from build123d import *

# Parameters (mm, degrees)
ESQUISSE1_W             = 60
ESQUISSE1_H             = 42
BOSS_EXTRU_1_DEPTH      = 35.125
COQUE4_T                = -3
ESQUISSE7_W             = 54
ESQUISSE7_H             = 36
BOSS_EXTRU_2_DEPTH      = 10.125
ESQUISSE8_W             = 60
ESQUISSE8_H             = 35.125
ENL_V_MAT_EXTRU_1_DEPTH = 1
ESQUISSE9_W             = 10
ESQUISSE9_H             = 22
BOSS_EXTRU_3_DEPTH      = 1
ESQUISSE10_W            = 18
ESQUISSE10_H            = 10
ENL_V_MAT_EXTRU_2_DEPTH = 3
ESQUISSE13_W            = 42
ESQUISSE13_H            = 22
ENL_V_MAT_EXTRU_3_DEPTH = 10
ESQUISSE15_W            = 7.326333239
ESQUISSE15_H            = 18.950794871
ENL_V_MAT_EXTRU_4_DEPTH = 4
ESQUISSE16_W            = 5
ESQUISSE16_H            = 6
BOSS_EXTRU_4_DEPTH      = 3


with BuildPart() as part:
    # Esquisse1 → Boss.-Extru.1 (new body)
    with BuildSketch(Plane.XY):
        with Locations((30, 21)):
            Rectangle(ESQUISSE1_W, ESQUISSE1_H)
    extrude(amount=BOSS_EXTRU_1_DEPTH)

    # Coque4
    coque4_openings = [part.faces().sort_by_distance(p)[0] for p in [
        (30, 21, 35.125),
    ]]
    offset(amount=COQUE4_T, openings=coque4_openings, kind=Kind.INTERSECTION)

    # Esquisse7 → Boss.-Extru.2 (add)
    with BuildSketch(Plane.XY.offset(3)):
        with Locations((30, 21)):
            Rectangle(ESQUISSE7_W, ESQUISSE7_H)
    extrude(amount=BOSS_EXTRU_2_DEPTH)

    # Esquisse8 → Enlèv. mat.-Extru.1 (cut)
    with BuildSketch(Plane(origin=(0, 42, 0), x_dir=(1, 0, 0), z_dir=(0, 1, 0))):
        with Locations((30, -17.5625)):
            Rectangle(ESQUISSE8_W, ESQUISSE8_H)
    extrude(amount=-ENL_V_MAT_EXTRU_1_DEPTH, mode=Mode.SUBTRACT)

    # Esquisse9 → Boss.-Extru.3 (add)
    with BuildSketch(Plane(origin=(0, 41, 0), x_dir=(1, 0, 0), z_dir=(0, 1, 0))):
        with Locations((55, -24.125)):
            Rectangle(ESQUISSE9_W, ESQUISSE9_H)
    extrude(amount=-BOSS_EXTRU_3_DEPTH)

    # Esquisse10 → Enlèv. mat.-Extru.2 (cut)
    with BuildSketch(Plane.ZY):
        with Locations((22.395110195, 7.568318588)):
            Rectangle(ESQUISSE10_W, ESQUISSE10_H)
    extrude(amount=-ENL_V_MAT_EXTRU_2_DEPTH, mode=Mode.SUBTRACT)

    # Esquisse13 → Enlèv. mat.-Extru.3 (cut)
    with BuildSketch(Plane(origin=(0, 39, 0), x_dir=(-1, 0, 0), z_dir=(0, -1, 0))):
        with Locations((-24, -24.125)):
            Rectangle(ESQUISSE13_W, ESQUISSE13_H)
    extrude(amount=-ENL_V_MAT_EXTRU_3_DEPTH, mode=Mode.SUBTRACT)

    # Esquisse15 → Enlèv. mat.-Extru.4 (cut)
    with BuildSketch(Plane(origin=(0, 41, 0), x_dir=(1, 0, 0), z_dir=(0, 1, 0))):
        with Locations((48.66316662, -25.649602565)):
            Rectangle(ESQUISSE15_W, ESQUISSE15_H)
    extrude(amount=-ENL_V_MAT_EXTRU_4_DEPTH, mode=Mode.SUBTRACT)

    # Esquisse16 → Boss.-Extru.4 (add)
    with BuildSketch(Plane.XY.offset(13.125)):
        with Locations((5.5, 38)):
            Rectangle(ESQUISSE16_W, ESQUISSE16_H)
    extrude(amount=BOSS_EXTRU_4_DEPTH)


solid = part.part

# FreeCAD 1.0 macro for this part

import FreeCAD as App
import Part
import Sketcher

V = App.Vector
Q = App.Units.Quantity


def faces_at(feature, points):
    """Names of the faces that lie closest to the given points."""
    faces = feature.Shape.Faces
    near = lambda p: min(range(len(faces)), key=lambda i: faces[i].distToShape(Part.Vertex(*p))[0])
    return sorted({f"Face{near(p) + 1}" for p in points})


def add_polygon(sketch, points):
    """Adds a closed chain of lines whose ends are joined by coincident constraints."""
    first, n = sketch.GeometryCount, len(points)
    for a, b in zip(points, points[1:] + points[:1]):
        sketch.addGeometry(Part.LineSegment(App.Vector(*a, 0), App.Vector(*b, 0)), False)
    for i in range(n):
        sketch.addConstraint(Sketcher.Constraint("Coincident", first + i, 2, first + (i + 1) % n, 1))

doc = App.newDocument("Part")
params = doc.addObject("Spreadsheet::Sheet", "Params")
for row, (alias, value) in enumerate([
    ("sketch1_width", "60 mm"),
    ("sketch1_height", "42 mm"),
    ("pad1_length", "35.125 mm"),
    ("thickness_wall", "3 mm"),
    ("sketch2_width", "54 mm"),
    ("sketch2_height", "36 mm"),
    ("pad2_length", "10.125 mm"),
    ("sketch3_width", "60 mm"),
    ("pocket1_length", "1 mm"),
    ("sketch4_width", "10 mm"),
    ("sketch4_height", "22 mm"),
    ("pad3_length", "1 mm"),
    ("sketch5_width", "10 mm"),
    ("sketch5_height", "18 mm"),
    ("pocket2_length", "3 mm"),
    ("sketch6_width", "42 mm"),
    ("sketch6_height", "22 mm"),
    ("pocket3_length", "10 mm"),
    ("pocket4_length", "4 mm"),
    ("sketch8_width", "5 mm"),
    ("sketch8_height", "6 mm"),
    ("pad4_length", "3 mm"),
], start=1):
    params.set(f"A{row}", alias)
    params.set(f"B{row}", "=" + value)
    params.setAlias(f"B{row}", alias)

body = doc.addObject("PartDesign::Body", "Body")

sketch1 = body.newObject("Sketcher::SketchObject", "Sketch")
sketch1.AttachmentSupport = (doc.getObject("XY_Plane"), [""])
sketch1.MapMode = "FlatFace"
add_polygon(sketch1, [(0, 42), (0, 0), (60, 0), (60, 42)])
sketch1.addConstraint([
    Sketcher.Constraint("Vertical", 0),
    Sketcher.Constraint("Horizontal", 1),
    Sketcher.Constraint("Vertical", 2),
    Sketcher.Constraint("Horizontal", 3),
    Sketcher.Constraint("Coincident", 0, 2, -1, 1),
    Sketcher.Constraint("DistanceX", 1, 1, 1, 2, Q("60 mm")),
    Sketcher.Constraint("DistanceY", 0, 2, 0, 1, Q("42 mm")),
])
sketch1.setExpression("Constraints[9]", "Params.sketch1_width")
sketch1.setExpression("Constraints[10]", "Params.sketch1_height")
pad1 = body.newObject("PartDesign::Pad", "Pad")
pad1.Profile = sketch1
pad1.setExpression("Length", "Params.pad1_length")
doc.recompute()

thickness = body.newObject("PartDesign::Thickness", "Thickness")
thickness.Base = (pad1, faces_at(pad1, [(30, 21, 35.125)]))
thickness.setExpression("Value", "Params.thickness_wall")
thickness.Reversed = True
thickness.Join = "Intersection"

sketch2 = body.newObject("Sketcher::SketchObject", "Sketch001")
sketch2.AttachmentSupport = (doc.getObject("XY_Plane"), [""])
sketch2.MapMode = "FlatFace"
sketch2.AttachmentOffset = App.Placement(V(0, 0, 3), App.Rotation())
add_polygon(sketch2, [(3, 39), (3, 3), (57, 3), (57, 39)])
sketch2.addConstraint([
    Sketcher.Constraint("Vertical", 0),
    Sketcher.Constraint("Horizontal", 1),
    Sketcher.Constraint("Vertical", 2),
    Sketcher.Constraint("Horizontal", 3),
    Sketcher.Constraint("DistanceX", 1, 1, 1, 2, Q("54 mm")),
    Sketcher.Constraint("DistanceY", 0, 2, 0, 1, Q("36 mm")),
    Sketcher.Constraint("DistanceX", -1, 1, 0, 2, Q("3 mm")),
    Sketcher.Constraint("DistanceY", -1, 1, 0, 2, Q("3 mm")),
])
sketch2.setExpression("Constraints[8]", "Params.sketch2_width")
sketch2.setExpression("Constraints[9]", "Params.sketch2_height")
pad2 = body.newObject("PartDesign::Pad", "Pad001")
pad2.Profile = sketch2
pad2.setExpression("Length", "Params.pad2_length")

sketch3 = body.newObject("Sketcher::SketchObject", "Sketch002")
sketch3.AttachmentSupport = (doc.getObject("XZ_Plane"), [""])
sketch3.MapMode = "FlatFace"
sketch3.AttachmentOffset = App.Placement(V(0, 0, -42), App.Rotation())
add_polygon(sketch3, [(0, 0), (0, 35.125), (60, 35.125), (60, 0)])
sketch3.addConstraint([
    Sketcher.Constraint("Vertical", 0),
    Sketcher.Constraint("Horizontal", 1),
    Sketcher.Constraint("Vertical", 2),
    Sketcher.Constraint("Horizontal", 3),
    Sketcher.Constraint("Coincident", 3, 2, -1, 1),
    Sketcher.Constraint("DistanceX", 1, 1, 1, 2, Q("60 mm")),
    Sketcher.Constraint("DistanceY", 0, 1, 0, 2, Q("35.125 mm")),
])
sketch3.setExpression("Constraints[9]", "Params.sketch3_width")
pocket1 = body.newObject("PartDesign::Pocket", "Pocket")
pocket1.Profile = sketch3
pocket1.setExpression("Length", "Params.pocket1_length")
pocket1.Reversed = True

sketch4 = body.newObject("Sketcher::SketchObject", "Sketch003")
sketch4.AttachmentSupport = (doc.getObject("XZ_Plane"), [""])
sketch4.MapMode = "FlatFace"
sketch4.AttachmentOffset = App.Placement(V(0, 0, -41), App.Rotation())
add_polygon(sketch4, [(50, 13.125), (50, 35.125), (60, 35.125), (60, 13.125)])
sketch4.addConstraint([
    Sketcher.Constraint("Vertical", 0),
    Sketcher.Constraint("Horizontal", 1),
    Sketcher.Constraint("Vertical", 2),
    Sketcher.Constraint("Horizontal", 3),
    Sketcher.Constraint("DistanceX", 1, 1, 1, 2, Q("10 mm")),
    Sketcher.Constraint("DistanceY", 0, 1, 0, 2, Q("22 mm")),
    Sketcher.Constraint("DistanceX", -1, 1, 0, 2, Q("50 mm")),
    Sketcher.Constraint("DistanceY", -1, 1, 0, 2, Q("35.125 mm")),
])
sketch4.setExpression("Constraints[8]", "Params.sketch4_width")
sketch4.setExpression("Constraints[9]", "Params.sketch4_height")
pad3 = body.newObject("PartDesign::Pad", "Pad002")
pad3.Profile = sketch4
pad3.setExpression("Length", "Params.pad3_length")

sketch5 = body.newObject("Sketcher::SketchObject", "Sketch004")
sketch5.AttachmentSupport = (doc.getObject("YZ_Plane"), [""])
sketch5.MapMode = "FlatFace"
add_polygon(sketch5, [(12.568319, 13.39511), (2.568319, 13.39511), (2.568319, 31.39511), (12.568319, 31.39511)])
sketch5.addConstraint([
    Sketcher.Constraint("Horizontal", 0),
    Sketcher.Constraint("Vertical", 1),
    Sketcher.Constraint("Horizontal", 2),
    Sketcher.Constraint("Vertical", 3),
    Sketcher.Constraint("DistanceX", 0, 2, 0, 1, Q("10 mm")),
    Sketcher.Constraint("DistanceY", 1, 1, 1, 2, Q("18 mm")),
    Sketcher.Constraint("DistanceX", -1, 1, 0, 2, Q("2.568319 mm")),
    Sketcher.Constraint("DistanceY", -1, 1, 0, 2, Q("13.39511 mm")),
])
sketch5.setExpression("Constraints[8]", "Params.sketch5_width")
sketch5.setExpression("Constraints[9]", "Params.sketch5_height")
pocket2 = body.newObject("PartDesign::Pocket", "Pocket001")
pocket2.Profile = sketch5
pocket2.setExpression("Length", "Params.pocket2_length")
pocket2.Reversed = True

sketch6 = body.newObject("Sketcher::SketchObject", "Sketch005")
sketch6.AttachmentSupport = (doc.getObject("XZ_Plane"), [""])
sketch6.MapMode = "FlatFace"
sketch6.AttachmentOffset = App.Placement(V(0, 0, -39), App.Rotation())
add_polygon(sketch6, [(45, 13.125), (45, 35.125), (3, 35.125), (3, 13.125)])
sketch6.addConstraint([
    Sketcher.Constraint("Vertical", 0),
    Sketcher.Constraint("Horizontal", 1),
    Sketcher.Constraint("Vertical", 2),
    Sketcher.Constraint("Horizontal", 3),
    Sketcher.Constraint("DistanceX", 1, 2, 1, 1, Q("42 mm")),
    Sketcher.Constraint("DistanceY", 0, 1, 0, 2, Q("22 mm")),
    Sketcher.Constraint("DistanceX", -1, 1, 0, 2, Q("45 mm")),
    Sketcher.Constraint("DistanceY", -1, 1, 0, 2, Q("35.125 mm")),
])
sketch6.setExpression("Constraints[8]", "Params.sketch6_width")
sketch6.setExpression("Constraints[9]", "Params.sketch6_height")
pocket3 = body.newObject("PartDesign::Pocket", "Pocket002")
pocket3.Profile = sketch6
pocket3.setExpression("Length", "Params.pocket3_length")

sketch7 = body.newObject("Sketcher::SketchObject", "Sketch006")
sketch7.AttachmentSupport = (doc.getObject("XZ_Plane"), [""])
sketch7.MapMode = "FlatFace"
sketch7.AttachmentOffset = App.Placement(V(0, 0, -41), App.Rotation())
add_polygon(sketch7, [(45, 16.174205), (45, 35.125), (52.326333, 35.125), (52.326333, 16.174205)])
sketch7.addConstraint([
    Sketcher.Constraint("Vertical", 0),
    Sketcher.Constraint("Horizontal", 1),
    Sketcher.Constraint("Vertical", 2),
    Sketcher.Constraint("Horizontal", 3),
    Sketcher.Constraint("DistanceX", -1, 1, 0, 2, Q("45 mm")),
    Sketcher.Constraint("DistanceY", -1, 1, 0, 2, Q("35.125 mm")),
    Sketcher.Constraint("DistanceX", 1, 1, 1, 2, Q("7.326333 mm")),
    Sketcher.Constraint("DistanceY", 0, 1, 0, 2, Q("18.950795 mm")),
])
pocket4 = body.newObject("PartDesign::Pocket", "Pocket003")
pocket4.Profile = sketch7
pocket4.setExpression("Length", "Params.pocket4_length")
pocket4.Reversed = True

sketch8 = body.newObject("Sketcher::SketchObject", "Sketch007")
sketch8.AttachmentSupport = (doc.getObject("XY_Plane"), [""])
sketch8.MapMode = "FlatFace"
sketch8.AttachmentOffset = App.Placement(V(0, 0, 13.125), App.Rotation())
add_polygon(sketch8, [(3, 41), (3, 35), (8, 35), (8, 41)])
sketch8.addConstraint([
    Sketcher.Constraint("Vertical", 0),
    Sketcher.Constraint("Horizontal", 1),
    Sketcher.Constraint("Vertical", 2),
    Sketcher.Constraint("Horizontal", 3),
    Sketcher.Constraint("DistanceX", 1, 1, 1, 2, Q("5 mm")),
    Sketcher.Constraint("DistanceY", 0, 2, 0, 1, Q("6 mm")),
    Sketcher.Constraint("DistanceX", -1, 1, 0, 2, Q("3 mm")),
    Sketcher.Constraint("DistanceY", -1, 1, 0, 2, Q("35 mm")),
])
sketch8.setExpression("Constraints[8]", "Params.sketch8_width")
sketch8.setExpression("Constraints[9]", "Params.sketch8_height")
pad4 = body.newObject("PartDesign::Pad", "Pad003")
pad4.Profile = sketch8
pad4.setExpression("Length", "Params.pad4_length")

doc.recompute()
